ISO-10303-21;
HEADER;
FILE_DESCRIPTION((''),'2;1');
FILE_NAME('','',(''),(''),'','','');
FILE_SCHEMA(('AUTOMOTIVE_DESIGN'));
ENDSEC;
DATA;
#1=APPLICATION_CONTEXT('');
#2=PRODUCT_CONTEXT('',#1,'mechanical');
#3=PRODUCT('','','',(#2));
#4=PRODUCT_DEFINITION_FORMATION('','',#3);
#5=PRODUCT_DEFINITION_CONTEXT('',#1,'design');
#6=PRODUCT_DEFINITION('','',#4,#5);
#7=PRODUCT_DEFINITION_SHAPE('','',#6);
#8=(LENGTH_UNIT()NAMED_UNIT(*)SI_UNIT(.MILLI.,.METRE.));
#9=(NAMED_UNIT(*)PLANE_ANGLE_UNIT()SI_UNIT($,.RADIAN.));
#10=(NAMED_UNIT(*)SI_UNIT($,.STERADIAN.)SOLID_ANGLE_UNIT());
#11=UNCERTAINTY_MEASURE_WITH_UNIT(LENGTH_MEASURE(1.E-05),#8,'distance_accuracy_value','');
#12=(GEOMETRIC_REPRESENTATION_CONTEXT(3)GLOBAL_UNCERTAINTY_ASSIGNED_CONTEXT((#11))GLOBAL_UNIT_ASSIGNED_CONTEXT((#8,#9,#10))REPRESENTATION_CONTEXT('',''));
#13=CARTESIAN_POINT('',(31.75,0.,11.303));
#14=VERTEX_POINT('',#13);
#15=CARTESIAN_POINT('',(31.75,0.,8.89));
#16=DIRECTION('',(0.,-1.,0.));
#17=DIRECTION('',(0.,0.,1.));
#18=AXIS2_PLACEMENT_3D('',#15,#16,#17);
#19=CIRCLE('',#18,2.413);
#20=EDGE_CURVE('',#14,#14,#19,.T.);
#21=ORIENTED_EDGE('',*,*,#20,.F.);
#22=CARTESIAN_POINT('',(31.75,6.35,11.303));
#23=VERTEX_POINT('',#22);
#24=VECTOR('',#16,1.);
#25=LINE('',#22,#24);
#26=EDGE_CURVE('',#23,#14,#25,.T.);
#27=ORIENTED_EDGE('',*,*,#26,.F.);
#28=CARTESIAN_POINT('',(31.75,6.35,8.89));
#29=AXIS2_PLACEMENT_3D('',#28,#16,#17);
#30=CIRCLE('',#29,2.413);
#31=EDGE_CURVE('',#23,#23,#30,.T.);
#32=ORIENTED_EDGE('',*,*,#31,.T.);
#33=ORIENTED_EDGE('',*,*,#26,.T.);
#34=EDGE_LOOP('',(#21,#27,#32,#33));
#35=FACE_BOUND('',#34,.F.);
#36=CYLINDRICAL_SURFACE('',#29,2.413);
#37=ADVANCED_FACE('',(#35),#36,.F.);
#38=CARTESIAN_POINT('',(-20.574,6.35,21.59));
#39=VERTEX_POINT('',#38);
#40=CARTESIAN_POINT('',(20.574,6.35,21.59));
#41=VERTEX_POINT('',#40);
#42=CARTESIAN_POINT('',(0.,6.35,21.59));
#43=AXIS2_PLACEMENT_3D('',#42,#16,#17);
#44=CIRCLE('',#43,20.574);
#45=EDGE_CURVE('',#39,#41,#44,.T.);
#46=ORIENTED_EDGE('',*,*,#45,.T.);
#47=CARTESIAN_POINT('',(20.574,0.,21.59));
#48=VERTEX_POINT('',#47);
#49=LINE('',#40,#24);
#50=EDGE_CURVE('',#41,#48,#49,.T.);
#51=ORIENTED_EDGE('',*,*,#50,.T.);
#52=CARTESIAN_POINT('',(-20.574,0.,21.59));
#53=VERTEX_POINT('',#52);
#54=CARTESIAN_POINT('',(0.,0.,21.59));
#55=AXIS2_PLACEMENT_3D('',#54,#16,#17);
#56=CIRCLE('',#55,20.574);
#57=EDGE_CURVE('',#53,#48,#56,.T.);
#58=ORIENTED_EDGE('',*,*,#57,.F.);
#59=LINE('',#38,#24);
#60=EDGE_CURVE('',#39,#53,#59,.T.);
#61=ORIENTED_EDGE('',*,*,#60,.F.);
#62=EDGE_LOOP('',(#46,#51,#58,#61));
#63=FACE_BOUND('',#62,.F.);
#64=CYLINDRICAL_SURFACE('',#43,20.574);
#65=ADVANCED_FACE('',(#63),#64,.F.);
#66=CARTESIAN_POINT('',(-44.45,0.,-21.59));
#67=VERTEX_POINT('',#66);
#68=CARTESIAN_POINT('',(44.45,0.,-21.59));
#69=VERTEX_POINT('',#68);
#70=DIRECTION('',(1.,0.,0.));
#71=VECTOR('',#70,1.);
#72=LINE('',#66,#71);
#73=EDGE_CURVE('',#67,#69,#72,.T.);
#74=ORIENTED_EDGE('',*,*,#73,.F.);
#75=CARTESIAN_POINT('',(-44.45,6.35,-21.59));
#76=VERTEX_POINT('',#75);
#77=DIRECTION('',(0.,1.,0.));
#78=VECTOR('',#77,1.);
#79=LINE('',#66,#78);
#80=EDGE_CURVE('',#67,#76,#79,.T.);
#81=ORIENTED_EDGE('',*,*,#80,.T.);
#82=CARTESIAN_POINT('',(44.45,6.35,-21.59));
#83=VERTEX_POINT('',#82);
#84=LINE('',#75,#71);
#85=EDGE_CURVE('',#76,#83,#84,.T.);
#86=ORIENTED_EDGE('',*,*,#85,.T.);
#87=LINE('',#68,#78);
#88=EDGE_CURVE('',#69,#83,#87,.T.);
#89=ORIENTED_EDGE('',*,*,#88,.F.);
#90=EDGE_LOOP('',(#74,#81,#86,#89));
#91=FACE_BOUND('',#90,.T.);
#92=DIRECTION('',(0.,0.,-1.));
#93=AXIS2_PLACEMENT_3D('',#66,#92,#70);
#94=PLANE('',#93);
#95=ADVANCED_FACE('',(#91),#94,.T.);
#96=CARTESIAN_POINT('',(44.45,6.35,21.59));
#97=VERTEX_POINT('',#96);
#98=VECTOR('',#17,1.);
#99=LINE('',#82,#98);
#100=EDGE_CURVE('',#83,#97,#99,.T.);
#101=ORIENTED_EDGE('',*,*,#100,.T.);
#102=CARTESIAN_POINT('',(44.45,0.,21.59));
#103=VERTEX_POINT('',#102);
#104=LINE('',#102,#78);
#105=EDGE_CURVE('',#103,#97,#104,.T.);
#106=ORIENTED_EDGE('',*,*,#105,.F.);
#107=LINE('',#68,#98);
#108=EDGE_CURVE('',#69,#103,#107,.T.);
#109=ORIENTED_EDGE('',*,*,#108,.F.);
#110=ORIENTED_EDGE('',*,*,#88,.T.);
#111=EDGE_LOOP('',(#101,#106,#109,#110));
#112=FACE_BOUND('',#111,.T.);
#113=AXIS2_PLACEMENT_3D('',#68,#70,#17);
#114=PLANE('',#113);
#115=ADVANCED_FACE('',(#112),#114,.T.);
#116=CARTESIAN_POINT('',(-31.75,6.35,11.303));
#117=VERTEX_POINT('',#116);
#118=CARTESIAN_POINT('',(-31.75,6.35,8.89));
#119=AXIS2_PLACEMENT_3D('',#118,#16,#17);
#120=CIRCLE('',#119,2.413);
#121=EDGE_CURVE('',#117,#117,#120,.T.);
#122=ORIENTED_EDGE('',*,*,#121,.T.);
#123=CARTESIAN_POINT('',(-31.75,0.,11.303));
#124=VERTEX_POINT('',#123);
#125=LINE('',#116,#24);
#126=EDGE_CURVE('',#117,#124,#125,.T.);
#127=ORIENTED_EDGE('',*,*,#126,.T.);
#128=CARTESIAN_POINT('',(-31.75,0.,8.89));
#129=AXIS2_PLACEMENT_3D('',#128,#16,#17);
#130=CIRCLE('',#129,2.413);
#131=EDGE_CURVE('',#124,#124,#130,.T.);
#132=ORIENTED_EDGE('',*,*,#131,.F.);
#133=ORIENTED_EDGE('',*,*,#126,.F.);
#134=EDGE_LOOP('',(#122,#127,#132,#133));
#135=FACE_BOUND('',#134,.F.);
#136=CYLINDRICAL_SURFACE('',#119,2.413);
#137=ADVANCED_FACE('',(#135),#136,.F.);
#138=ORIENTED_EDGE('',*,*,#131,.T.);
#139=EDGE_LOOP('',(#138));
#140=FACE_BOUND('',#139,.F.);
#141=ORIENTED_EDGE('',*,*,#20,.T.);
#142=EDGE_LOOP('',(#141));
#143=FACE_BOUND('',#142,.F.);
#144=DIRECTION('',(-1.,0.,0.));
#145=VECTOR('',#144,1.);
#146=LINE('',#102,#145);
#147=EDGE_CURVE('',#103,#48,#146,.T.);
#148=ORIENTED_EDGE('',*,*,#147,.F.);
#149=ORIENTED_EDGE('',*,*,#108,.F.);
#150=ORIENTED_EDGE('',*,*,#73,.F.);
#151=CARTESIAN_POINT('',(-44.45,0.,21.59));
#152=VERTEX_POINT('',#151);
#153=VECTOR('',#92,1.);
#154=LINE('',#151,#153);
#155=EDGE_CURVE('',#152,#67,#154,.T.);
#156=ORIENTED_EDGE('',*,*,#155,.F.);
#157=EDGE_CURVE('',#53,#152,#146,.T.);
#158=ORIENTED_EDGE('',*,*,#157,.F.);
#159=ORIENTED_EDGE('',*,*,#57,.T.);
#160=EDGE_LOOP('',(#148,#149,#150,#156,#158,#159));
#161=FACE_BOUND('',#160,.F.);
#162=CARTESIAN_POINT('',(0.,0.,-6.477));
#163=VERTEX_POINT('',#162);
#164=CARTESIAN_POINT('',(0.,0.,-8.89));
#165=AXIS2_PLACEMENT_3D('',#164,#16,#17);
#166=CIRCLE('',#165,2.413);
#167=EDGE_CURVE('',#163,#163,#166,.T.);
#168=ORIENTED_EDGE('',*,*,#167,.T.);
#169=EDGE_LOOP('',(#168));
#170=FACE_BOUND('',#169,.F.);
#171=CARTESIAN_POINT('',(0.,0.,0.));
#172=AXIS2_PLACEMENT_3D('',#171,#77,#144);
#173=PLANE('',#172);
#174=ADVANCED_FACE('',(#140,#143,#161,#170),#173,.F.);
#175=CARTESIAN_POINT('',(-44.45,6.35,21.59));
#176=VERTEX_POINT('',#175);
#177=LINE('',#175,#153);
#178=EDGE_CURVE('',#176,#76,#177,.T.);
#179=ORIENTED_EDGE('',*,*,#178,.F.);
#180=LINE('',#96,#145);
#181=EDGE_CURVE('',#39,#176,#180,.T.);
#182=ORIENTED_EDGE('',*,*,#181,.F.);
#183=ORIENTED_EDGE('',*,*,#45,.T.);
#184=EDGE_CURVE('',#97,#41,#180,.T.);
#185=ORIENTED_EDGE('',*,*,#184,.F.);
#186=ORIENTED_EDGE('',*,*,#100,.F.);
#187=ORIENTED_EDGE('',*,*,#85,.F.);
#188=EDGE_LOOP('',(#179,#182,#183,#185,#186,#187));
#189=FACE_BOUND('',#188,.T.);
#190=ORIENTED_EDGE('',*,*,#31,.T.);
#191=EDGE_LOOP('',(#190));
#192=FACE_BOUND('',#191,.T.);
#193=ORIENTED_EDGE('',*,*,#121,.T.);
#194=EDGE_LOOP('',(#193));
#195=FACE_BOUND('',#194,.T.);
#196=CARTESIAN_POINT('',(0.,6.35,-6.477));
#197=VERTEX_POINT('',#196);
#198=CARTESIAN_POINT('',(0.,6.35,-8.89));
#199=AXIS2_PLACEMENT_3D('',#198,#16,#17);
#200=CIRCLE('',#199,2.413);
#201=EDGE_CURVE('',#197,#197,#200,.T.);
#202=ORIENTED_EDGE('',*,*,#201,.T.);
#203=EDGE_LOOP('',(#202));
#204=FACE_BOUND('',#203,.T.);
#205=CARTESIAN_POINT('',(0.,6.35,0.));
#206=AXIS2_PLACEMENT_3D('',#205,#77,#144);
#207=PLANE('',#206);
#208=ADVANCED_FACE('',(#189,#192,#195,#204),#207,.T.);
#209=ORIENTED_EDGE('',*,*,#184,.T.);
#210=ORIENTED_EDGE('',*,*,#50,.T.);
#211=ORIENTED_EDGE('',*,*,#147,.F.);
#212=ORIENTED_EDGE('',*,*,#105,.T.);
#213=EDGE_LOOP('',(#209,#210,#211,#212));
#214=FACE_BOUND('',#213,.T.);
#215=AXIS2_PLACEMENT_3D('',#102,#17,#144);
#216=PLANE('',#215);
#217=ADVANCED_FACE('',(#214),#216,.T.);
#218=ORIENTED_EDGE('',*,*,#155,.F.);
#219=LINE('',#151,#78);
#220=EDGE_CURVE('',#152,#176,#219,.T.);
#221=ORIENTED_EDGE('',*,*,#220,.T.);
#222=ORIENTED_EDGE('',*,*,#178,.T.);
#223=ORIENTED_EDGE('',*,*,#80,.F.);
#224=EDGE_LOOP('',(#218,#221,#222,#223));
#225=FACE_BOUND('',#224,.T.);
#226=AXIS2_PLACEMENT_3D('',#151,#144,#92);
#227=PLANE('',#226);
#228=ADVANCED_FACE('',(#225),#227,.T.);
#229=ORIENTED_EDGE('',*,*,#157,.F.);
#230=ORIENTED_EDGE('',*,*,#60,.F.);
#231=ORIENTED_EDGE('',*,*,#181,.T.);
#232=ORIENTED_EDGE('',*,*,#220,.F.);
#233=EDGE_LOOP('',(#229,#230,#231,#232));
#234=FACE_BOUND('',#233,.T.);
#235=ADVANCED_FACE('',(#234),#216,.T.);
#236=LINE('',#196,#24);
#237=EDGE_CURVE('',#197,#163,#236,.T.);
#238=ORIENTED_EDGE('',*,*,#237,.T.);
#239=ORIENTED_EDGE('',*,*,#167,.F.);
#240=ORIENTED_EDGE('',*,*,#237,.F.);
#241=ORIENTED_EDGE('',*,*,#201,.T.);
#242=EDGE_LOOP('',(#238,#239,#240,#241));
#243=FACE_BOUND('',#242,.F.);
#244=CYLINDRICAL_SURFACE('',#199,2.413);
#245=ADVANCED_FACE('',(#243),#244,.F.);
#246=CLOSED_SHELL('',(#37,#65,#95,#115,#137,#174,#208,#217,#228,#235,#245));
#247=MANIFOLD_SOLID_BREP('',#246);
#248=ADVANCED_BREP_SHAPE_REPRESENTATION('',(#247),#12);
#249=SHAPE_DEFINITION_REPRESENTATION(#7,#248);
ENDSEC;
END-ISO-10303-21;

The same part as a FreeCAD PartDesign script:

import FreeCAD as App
import Part
import Sketcher

V = App.Vector
Q = App.Units.Quantity


def add_polygon(sketch, points):
    """Adds a closed chain of lines whose ends are joined by coincident constraints."""
    first, n = sketch.GeometryCount, len(points)
    for a, b in zip(points, points[1:] + points[:1]):
        sketch.addGeometry(Part.LineSegment(App.Vector(*a, 0), App.Vector(*b, 0)), False)
    for i in range(n):
        sketch.addConstraint(Sketcher.Constraint("Coincident", first + i, 2, first + (i + 1) % n, 1))

doc = App.newDocument("Part")
params = doc.addObject("Spreadsheet::Sheet", "Params")
for row, (alias, value) in enumerate([
    ("sketch1_width", "3.5 in"),
    ("sketch1_height", "1.7 in"),
    ("pad1_length", "0.25 in"),
    ("sketch2_diameter", "1.62 in"),
    ("hole_diameter", "1.62 in"),
    ("sketch3_diameter", "0.19 in"),
    ("hole2_diameter", "0.19 in"),
    ("sketch4_diameter", "0.19 in"),
    ("hole3_diameter", "0.19 in"),
    ("sketch5_diameter", "0.19 in"),
    ("hole4_diameter", "0.19 in"),
], start=1):
    params.set(f"A{row}", alias)
    params.set(f"B{row}", "=" + value)
    params.setAlias(f"B{row}", alias)

body = doc.addObject("PartDesign::Body", "Body")

# Sketch on XZ plane
sketch1 = body.newObject("Sketcher::SketchObject", "Sketch")
sketch1.AttachmentSupport = (doc.getObject("XZ_Plane"), [""])
sketch1.MapMode = "FlatFace"
add_polygon(sketch1, [(-44, 22), (44, 22), (44, -22), (-44, -22)])  # lines 0-3
sketch1.addConstraint(Sketcher.Constraint("Horizontal", 0))
sketch1.addConstraint(Sketcher.Constraint("Vertical", 1))
sketch1.addConstraint(Sketcher.Constraint("Horizontal", 2))
sketch1.addConstraint(Sketcher.Constraint("Vertical", 3))
sketch1.addConstraint(Sketcher.Constraint("Symmetric", 0, 2, 2, 2, -1, 1))
sketch1.addConstraint(Sketcher.Constraint("DistanceX", 0, 1, 0, 2, Q("3.5 in")))
sketch1.addConstraint(Sketcher.Constraint("DistanceY", 1, 2, 1, 1, Q("1.7 in")))
sketch1.setExpression("Constraints[9]", "Params.sketch1_width")
sketch1.setExpression("Constraints[10]", "Params.sketch1_height")
pad1 = body.newObject("PartDesign::Pad", "Pad")
pad1.Profile = sketch1
pad1.setExpression("Length", "Params.pad1_length")
pad1.Reversed = True

# Sketch on XZ plane
sketch2 = body.newObject("Sketcher::SketchObject", "Sketch001")
sketch2.AttachmentSupport = (doc.getObject("XZ_Plane"), [""])
sketch2.MapMode = "FlatFace"
sketch2.AttachmentOffset = App.Placement(V(0, 0, -0.25 * 25.4), App.Rotation())
sketch2.addGeometry(Part.Circle(V(0, 22, 0), V(0, 0, 1), 21), False)
sketch2.addConstraint(Sketcher.Constraint("PointOnObject", 0, 3, -2))
sketch2.addConstraint(Sketcher.Constraint("Diameter", 0, Q("1.62 in")))
sketch2.addConstraint(Sketcher.Constraint("DistanceY", -1, 1, 0, 3, Q("0.85 in")))
sketch2.setExpression("Constraints[1]", "Params.sketch2_diameter")
doc.recompute()
hole = body.newObject("PartDesign::Hole", "Hole")
hole.Profile = sketch2
hole.ThreadType = "None"
hole.setExpression("Diameter", "Params.hole_diameter")
hole.DepthType = "ThroughAll"
hole.Reversed = True

# Sketch on XZ plane
sketch3 = body.newObject("Sketcher::SketchObject", "Sketch002")
sketch3.AttachmentSupport = (doc.getObject("XZ_Plane"), [""])
sketch3.MapMode = "FlatFace"
sketch3.AttachmentOffset = App.Placement(V(0, 0, -0.25 * 25.4), App.Rotation())
sketch3.addGeometry(Part.Circle(V(-31.8, 8.9, 0), V(0, 0, 1), 2.4), False)
sketch3.addConstraint(Sketcher.Constraint("Diameter", 0, Q("0.19 in")))
sketch3.addConstraint(Sketcher.Constraint("DistanceX", 0, 3, -1, 1, Q("1.25 in")))
sketch3.addConstraint(Sketcher.Constraint("DistanceY", -1, 1, 0, 3, Q("0.35 in")))
sketch3.setExpression("Constraints[0]", "Params.sketch3_diameter")
doc.recompute()
hole2 = body.newObject("PartDesign::Hole", "Hole001")
hole2.Profile = sketch3
hole2.ThreadType = "None"
hole2.setExpression("Diameter", "Params.hole2_diameter")
hole2.DepthType = "ThroughAll"
hole2.Reversed = True

# Sketch on XZ plane
sketch4 = body.newObject("Sketcher::SketchObject", "Sketch003")
sketch4.AttachmentSupport = (doc.getObject("XZ_Plane"), [""])
sketch4.MapMode = "FlatFace"
sketch4.AttachmentOffset = App.Placement(V(0, 0, -0.25 * 25.4), App.Rotation())
sketch4.addGeometry(Part.Circle(V(0, -8.9, 0), V(0, 0, 1), 2.4), False)
sketch4.addConstraint(Sketcher.Constraint("PointOnObject", 0, 3, -2))
sketch4.addConstraint(Sketcher.Constraint("Diameter", 0, Q("0.19 in")))
sketch4.addConstraint(Sketcher.Constraint("DistanceY", 0, 3, -1, 1, Q("0.35 in")))
sketch4.setExpression("Constraints[1]", "Params.sketch4_diameter")
doc.recompute()
hole3 = body.newObject("PartDesign::Hole", "Hole002")
hole3.Profile = sketch4
hole3.ThreadType = "None"
hole3.setExpression("Diameter", "Params.hole3_diameter")
hole3.DepthType = "ThroughAll"
hole3.Reversed = True

# Sketch on XZ plane
sketch5 = body.newObject("Sketcher::SketchObject", "Sketch004")
sketch5.AttachmentSupport = (doc.getObject("XZ_Plane"), [""])
sketch5.MapMode = "FlatFace"
sketch5.AttachmentOffset = App.Placement(V(0, 0, -0.25 * 25.4), App.Rotation())
sketch5.addGeometry(Part.Circle(V(31.8, 8.9, 0), V(0, 0, 1), 2.4), False)
sketch5.addConstraint(Sketcher.Constraint("Diameter", 0, Q("0.19 in")))
sketch5.addConstraint(Sketcher.Constraint("DistanceX", -1, 1, 0, 3, Q("1.25 in")))
sketch5.addConstraint(Sketcher.Constraint("DistanceY", -1, 1, 0, 3, Q("0.35 in")))
sketch5.setExpression("Constraints[0]", "Params.sketch5_diameter")
doc.recompute()
hole4 = body.newObject("PartDesign::Hole", "Hole003")
hole4.Profile = sketch5
hole4.ThreadType = "None"
hole4.setExpression("Diameter", "Params.hole4_diameter")
hole4.DepthType = "ThroughAll"
hole4.Reversed = True

doc.recompute()
